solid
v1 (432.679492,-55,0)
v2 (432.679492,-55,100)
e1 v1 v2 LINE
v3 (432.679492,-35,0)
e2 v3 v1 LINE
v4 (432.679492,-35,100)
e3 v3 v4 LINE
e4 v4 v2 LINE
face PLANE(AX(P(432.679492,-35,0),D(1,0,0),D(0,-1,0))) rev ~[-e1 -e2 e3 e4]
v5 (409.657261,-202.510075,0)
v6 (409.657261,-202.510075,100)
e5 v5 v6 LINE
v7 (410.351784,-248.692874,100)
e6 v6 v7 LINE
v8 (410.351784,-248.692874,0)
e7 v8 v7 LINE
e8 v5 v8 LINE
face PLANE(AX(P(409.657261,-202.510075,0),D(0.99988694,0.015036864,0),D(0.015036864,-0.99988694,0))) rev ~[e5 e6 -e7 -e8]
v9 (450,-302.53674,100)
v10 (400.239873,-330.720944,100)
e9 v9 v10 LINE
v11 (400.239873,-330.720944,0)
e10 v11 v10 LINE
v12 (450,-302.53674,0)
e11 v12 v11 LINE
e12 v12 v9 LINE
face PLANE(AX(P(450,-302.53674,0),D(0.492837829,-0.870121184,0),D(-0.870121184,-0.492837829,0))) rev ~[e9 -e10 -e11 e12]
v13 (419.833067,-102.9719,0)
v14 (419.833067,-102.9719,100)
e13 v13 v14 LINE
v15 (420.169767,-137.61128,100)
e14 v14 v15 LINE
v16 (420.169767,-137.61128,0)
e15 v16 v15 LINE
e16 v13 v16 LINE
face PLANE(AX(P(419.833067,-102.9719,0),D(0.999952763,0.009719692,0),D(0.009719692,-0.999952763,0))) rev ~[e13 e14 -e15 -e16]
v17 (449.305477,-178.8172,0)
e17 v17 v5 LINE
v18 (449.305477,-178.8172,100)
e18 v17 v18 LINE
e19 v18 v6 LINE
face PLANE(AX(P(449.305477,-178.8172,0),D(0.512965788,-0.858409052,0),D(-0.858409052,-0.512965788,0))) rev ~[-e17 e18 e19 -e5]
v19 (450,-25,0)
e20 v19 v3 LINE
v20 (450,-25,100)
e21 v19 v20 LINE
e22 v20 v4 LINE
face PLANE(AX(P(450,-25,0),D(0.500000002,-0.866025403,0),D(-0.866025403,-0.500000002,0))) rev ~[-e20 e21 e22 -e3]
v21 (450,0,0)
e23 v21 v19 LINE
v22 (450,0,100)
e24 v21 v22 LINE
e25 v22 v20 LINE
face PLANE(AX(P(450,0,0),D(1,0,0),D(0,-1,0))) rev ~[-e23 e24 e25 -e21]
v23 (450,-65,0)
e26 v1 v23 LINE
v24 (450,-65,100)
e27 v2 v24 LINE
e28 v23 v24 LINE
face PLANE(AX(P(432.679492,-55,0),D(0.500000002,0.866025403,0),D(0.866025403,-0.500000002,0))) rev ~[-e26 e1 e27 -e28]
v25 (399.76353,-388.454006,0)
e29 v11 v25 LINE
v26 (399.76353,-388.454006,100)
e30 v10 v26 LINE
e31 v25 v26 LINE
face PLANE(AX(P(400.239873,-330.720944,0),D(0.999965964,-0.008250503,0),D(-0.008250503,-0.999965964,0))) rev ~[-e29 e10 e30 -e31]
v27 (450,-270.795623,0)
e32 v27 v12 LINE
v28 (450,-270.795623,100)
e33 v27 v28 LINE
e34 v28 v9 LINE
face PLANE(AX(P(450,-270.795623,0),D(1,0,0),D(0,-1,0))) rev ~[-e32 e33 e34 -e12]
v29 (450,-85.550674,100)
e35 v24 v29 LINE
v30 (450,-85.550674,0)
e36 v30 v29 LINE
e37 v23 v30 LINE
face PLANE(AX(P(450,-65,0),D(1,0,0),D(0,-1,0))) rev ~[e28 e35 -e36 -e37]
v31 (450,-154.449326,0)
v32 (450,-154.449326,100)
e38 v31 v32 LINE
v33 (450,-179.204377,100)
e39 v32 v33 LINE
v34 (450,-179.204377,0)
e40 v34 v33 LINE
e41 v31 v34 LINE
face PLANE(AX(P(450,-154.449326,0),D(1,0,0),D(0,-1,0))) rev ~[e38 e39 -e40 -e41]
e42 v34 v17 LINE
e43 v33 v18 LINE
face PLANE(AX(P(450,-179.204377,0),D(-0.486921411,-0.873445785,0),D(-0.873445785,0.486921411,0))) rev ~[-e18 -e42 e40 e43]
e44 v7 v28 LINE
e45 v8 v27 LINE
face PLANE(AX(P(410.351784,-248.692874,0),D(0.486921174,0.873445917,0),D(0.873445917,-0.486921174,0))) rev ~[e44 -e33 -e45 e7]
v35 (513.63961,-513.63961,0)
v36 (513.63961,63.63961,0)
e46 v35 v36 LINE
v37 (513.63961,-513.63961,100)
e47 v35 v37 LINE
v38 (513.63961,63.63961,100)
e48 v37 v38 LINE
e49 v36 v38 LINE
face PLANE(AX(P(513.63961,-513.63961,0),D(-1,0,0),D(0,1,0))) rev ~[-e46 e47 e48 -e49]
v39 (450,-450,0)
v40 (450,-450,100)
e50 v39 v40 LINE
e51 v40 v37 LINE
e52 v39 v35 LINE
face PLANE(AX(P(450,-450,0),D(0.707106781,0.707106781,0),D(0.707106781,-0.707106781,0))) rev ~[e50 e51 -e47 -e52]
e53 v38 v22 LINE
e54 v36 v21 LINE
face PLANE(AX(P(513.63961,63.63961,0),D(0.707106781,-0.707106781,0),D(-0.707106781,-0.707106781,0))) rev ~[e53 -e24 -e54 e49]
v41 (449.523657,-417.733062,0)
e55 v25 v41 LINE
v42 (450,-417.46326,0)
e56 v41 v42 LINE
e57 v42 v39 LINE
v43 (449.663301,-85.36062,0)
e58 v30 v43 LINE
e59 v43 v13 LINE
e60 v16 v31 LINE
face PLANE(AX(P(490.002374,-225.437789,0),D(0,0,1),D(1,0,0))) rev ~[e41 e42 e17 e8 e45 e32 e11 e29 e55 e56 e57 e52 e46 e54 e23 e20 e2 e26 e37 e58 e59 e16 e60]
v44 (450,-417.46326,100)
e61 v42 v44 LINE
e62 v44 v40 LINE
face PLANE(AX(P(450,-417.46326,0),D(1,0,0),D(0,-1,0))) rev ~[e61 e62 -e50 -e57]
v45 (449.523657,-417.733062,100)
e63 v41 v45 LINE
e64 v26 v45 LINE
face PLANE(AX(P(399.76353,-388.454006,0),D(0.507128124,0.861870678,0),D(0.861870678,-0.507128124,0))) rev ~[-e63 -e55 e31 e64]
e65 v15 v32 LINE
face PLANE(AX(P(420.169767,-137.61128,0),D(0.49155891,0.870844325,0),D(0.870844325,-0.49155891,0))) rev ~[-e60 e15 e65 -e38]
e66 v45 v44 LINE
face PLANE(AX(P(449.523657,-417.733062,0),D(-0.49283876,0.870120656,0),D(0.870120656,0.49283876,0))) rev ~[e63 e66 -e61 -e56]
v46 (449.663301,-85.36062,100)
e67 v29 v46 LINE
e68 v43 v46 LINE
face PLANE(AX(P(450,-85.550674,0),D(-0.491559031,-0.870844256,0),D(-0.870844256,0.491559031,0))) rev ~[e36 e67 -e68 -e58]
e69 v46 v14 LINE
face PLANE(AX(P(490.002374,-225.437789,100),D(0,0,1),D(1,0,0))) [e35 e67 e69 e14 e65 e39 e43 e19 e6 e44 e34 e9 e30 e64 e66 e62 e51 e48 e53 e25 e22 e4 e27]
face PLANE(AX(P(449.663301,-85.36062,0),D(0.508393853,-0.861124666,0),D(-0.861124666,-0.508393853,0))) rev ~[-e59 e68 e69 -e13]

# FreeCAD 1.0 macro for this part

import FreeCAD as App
import Part
import Sketcher

V = App.Vector
Q = App.Units.Quantity


def add_polygon(sketch, points):
    """Adds a closed chain of lines whose ends are joined by coincident constraints."""
    first, n = sketch.GeometryCount, len(points)
    for a, b in zip(points, points[1:] + points[:1]):
        sketch.addGeometry(Part.LineSegment(App.Vector(*a, 0), App.Vector(*b, 0)), False)
    for i in range(n):
        sketch.addConstraint(Sketcher.Constraint("Coincident", first + i, 2, first + (i + 1) % n, 1))

doc = App.newDocument("Part")
body = doc.addObject("PartDesign::Body", "Body")

sketch1 = body.newObject("Sketcher::SketchObject", "Sketch")
sketch1.AttachmentSupport = (doc.getObject("XY_Plane"), [""])
sketch1.MapMode = "FlatFace"
add_polygon(sketch1, [(513.63961, 63.63961), (450, 0), (450, -25), (432.679492, -35), (432.679492, -55), (450, -65), (450, -85.550674), (449.663301, -85.36062), (419.833067, -102.9719), (420.169767, -137.61128), (450, -154.449326), (450, -179.204377), (449.305477, -178.8172), (409.657261, -202.510075), (410.351784, -248.692874), (450, -270.795623), (450, -302.53674), (400.239873, -330.720944), (399.76353, -388.454006), (449.523657, -417.733062), (450, -417.46326), (450, -450), (513.63961, -513.63961)])
sketch1.addConstraint([
    Sketcher.Constraint("Vertical", 1),
    Sketcher.Constraint("Vertical", 3),
    Sketcher.Constraint("Vertical", 5),
    Sketcher.Constraint("Vertical", 10),
    Sketcher.Constraint("Vertical", 15),
    Sketcher.Constraint("Vertical", 20),
    Sketcher.Constraint("Vertical", 22),
    Sketcher.Constraint("PointOnObject", 0, 2, -1),
    Sketcher.Constraint("Parallel", 6, 9),
    Sketcher.Constraint("Parallel", 11, 14),
    Sketcher.Constraint("Parallel", 16, 19),
    Sketcher.Constraint("Perpendicular", 0, 21),
    Sketcher.Constraint("Vertical", 1, 2, 4, 2),
    Sketcher.Constraint("Vertical", 5, 2, 9, 2),
    Sketcher.Constraint("Vertical", 10, 2, 14, 2),
    Sketcher.Constraint("Vertical", 15, 2, 19, 2),
    Sketcher.Constraint("Equal", 2, 4),
    Sketcher.Constraint("Equal", 7, 8),
    Sketcher.Constraint("Equal", 12, 13),
    Sketcher.Constraint("Equal", 17, 18),
    Sketcher.Constraint("Equal", 0, 21),
    Sketcher.Constraint("DistanceY", 1, 2, 1, 1, Q("25 mm")),
    Sketcher.Constraint("DistanceY", 3, 2, 3, 1, Q("20 mm")),
    Sketcher.Constraint("Angle", 2, Q("-150 deg")),
    Sketcher.Constraint("Distance", 0, Q("90 mm")),
    Sketcher.Constraint("Distance", 2, Q("20 mm")),
    Sketcher.Constraint("DistanceX", -1, 1, 0, 2, Q("450 mm")),
    Sketcher.Constraint("DistanceY", 20, 2, -1, 1, Q("450 mm")),
    Sketcher.Constraint("DistanceY", 10, 2, 10, 1, Q("24.755051 mm")),
    Sketcher.Constraint("DistanceY", 20, 2, 20, 1, Q("32.53674 mm")),
    Sketcher.Constraint("DistanceX", -1, 1, 6, 2, Q("449.663301 mm")),
    Sketcher.Constraint("DistanceY", 7, 2, -1, 1, Q("102.9719 mm")),
    Sketcher.Constraint("DistanceY", 11, 2, -1, 1, Q("178.8172 mm")),
    Sketcher.Constraint("DistanceX", 7, 2, 8, 2, Q("0.3367 mm")),
    Sketcher.Constraint("DistanceY", 12, 2, 10, 2, Q("23.305698 mm")),
    Sketcher.Constraint("DistanceY", 13, 2, 12, 2, Q("46.182799 mm")),
    Sketcher.Constraint("Distance", 9, Q("34.254381 mm")),
    Sketcher.Constraint("Distance", 12, Q("46.188022 mm")),
    Sketcher.Constraint("Distance", 14, Q("45.392869 mm")),
    Sketcher.Constraint("DistanceY", 5, 2, 5, 1, Q("20.550674 mm")),
    Sketcher.Constraint("DistanceY", 15, 2, 15, 1, Q("31.741117 mm")),
    Sketcher.Constraint("DistanceY", 6, 2, -1, 1, Q("85.36062 mm")),
    Sketcher.Constraint("DistanceX", -1, 1, 17, 2, Q("399.76353 mm")),
    Sketcher.Constraint("DistanceY", 18, 2, -1, 1, Q("417.733062 mm")),
    Sketcher.Constraint("DistanceY", 16, 2, 14, 2, Q("59.925321 mm")),
    Sketcher.Constraint("DistanceX", 16, 2, 13, 2, Q("10.111911 mm")),
])
pad1 = body.newObject("PartDesign::Pad", "Pad")
pad1.Profile = sketch1
pad1.Length = 100

doc.recompute()
